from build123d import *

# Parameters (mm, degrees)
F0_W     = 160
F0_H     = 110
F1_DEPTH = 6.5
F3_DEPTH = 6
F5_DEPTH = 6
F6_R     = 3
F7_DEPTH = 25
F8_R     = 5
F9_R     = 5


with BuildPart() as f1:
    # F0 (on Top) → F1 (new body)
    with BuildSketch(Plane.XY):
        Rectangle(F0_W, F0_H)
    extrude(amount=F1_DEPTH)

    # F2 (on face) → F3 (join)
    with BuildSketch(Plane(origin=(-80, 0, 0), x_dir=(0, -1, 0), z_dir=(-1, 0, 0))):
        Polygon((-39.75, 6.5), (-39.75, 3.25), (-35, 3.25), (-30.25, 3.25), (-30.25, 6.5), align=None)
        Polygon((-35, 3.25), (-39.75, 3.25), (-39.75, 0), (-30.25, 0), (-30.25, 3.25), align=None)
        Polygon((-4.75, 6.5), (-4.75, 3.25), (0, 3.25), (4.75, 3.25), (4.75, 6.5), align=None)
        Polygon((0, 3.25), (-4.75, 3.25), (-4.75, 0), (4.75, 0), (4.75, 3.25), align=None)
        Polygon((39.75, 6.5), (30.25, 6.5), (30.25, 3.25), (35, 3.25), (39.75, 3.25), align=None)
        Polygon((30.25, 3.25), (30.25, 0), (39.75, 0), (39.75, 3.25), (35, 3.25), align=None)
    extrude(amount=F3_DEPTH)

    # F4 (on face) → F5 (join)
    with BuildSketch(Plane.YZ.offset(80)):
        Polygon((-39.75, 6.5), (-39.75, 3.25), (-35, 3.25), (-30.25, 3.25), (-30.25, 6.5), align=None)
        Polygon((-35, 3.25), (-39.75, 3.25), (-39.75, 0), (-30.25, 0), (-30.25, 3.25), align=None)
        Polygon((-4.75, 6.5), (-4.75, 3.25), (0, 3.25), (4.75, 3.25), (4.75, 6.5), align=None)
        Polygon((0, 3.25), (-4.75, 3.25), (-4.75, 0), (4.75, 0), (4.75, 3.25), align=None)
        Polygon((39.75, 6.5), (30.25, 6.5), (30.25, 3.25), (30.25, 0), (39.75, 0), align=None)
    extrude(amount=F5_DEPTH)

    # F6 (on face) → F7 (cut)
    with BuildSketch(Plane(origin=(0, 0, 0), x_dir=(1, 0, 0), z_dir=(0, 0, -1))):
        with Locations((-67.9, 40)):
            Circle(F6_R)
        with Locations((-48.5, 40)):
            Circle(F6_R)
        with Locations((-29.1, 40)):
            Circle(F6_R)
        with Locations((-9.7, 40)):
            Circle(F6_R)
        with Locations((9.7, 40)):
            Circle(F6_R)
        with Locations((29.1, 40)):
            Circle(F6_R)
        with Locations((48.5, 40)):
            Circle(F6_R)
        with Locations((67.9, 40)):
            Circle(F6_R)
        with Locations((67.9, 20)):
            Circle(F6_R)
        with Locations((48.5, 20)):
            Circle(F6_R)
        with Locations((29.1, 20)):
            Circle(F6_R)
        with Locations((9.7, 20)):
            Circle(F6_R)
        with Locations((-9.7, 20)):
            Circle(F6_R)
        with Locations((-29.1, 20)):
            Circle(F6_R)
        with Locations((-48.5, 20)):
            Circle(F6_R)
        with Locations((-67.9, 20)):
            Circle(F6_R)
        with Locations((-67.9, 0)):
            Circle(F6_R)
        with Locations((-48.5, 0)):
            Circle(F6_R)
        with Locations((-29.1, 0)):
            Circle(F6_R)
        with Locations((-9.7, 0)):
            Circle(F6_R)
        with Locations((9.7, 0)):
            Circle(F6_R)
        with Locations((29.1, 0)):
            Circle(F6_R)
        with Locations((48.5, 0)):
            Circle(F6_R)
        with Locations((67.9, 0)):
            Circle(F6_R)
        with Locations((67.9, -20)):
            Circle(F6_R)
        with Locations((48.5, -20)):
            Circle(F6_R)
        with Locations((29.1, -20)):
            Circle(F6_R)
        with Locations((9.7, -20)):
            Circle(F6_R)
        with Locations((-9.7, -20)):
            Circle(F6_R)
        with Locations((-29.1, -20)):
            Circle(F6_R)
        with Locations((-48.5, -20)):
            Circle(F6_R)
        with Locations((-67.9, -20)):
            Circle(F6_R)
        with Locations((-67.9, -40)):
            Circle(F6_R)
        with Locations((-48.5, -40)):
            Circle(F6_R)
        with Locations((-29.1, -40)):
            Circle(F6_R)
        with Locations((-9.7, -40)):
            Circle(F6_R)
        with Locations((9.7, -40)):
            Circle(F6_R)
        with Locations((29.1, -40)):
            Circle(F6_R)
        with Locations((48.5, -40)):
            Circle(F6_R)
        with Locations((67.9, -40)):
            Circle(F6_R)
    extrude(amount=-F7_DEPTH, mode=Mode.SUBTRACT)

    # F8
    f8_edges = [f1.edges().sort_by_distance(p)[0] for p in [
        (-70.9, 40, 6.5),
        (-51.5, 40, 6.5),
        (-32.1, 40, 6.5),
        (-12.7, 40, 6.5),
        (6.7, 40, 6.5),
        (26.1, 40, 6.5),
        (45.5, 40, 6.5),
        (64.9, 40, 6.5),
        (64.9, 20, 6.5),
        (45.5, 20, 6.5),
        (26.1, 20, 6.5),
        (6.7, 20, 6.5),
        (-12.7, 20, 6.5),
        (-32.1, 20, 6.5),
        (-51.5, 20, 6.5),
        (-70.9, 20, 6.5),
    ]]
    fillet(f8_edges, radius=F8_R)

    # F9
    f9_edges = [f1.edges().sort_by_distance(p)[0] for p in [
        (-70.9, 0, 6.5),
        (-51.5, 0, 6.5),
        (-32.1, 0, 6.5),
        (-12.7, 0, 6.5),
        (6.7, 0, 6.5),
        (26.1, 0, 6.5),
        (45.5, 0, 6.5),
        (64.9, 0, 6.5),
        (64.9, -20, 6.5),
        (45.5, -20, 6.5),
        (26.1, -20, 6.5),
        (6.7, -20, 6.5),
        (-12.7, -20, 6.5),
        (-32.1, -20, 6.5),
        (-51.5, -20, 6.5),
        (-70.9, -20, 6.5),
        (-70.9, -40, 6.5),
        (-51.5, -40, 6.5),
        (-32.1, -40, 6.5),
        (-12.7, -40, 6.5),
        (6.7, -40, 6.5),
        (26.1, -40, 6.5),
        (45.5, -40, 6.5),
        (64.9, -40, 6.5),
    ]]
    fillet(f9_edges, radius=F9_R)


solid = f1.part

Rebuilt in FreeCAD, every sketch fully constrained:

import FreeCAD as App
import Part
import Sketcher

V = App.Vector
Q = App.Units.Quantity


def edges_at(feature, points):
    """Names of the edges that pass closest to the given points."""
    edges = feature.Shape.Edges
    near = lambda p: min(range(len(edges)), key=lambda i: edges[i].distToShape(Part.Vertex(*p))[0])
    return sorted({f"Edge{near(p) + 1}" for p in points})


def add_polygon(sketch, points):
    """Adds a closed chain of lines whose ends are joined by coincident constraints."""
    first, n = sketch.GeometryCount, len(points)
    for a, b in zip(points, points[1:] + points[:1]):
        sketch.addGeometry(Part.LineSegment(App.Vector(*a, 0), App.Vector(*b, 0)), False)
    for i in range(n):
        sketch.addConstraint(Sketcher.Constraint("Coincident", first + i, 2, first + (i + 1) % n, 1))

doc = App.newDocument("Part")
body = doc.addObject("PartDesign::Body", "Body")

sketch1 = body.newObject("Sketcher::SketchObject", "Sketch")
sketch1.AttachmentSupport = (doc.getObject("XY_Plane"), [""])
sketch1.MapMode = "FlatFace"
add_polygon(sketch1, [(-80, 55), (-80, -55), (80, -55), (80, 55)])
sketch1.addConstraint([
    Sketcher.Constraint("Vertical", 0),
    Sketcher.Constraint("Horizontal", 1),
    Sketcher.Constraint("Vertical", 2),
    Sketcher.Constraint("Horizontal", 3),
    Sketcher.Constraint("Symmetric", 0, 2, 2, 2, -1, 1),
    Sketcher.Constraint("DistanceX", 1, 1, 1, 2, Q("160 mm")),
    Sketcher.Constraint("DistanceY", 0, 2, 0, 1, Q("110 mm")),
])
pad1 = body.newObject("PartDesign::Pad", "Pad")
pad1.Profile = sketch1
pad1.Length = 6.5

sketch2 = body.newObject("Sketcher::SketchObject", "Sketch001")
sketch2.AttachmentSupport = (doc.getObject("YZ_Plane"), [""])
sketch2.MapMode = "FlatFace"
sketch2.AttachmentOffset = App.Placement(V(0, 0, -80), App.Rotation())
add_polygon(sketch2, [(40, 6), (40, 0), (30, 0), (30, 6)])
add_polygon(sketch2, [(5, 6), (5, 0), (-5, 0), (-5, 6)])
add_polygon(sketch2, [(-40, 6), (-30, 6), (-30, 0), (-40, 0)])
sketch2.addConstraint([
    Sketcher.Constraint("Vertical", 0),
    Sketcher.Constraint("Horizontal", 1),
    Sketcher.Constraint("Vertical", 2),
    Sketcher.Constraint("Horizontal", 3),
    Sketcher.Constraint("Vertical", 4),
    Sketcher.Constraint("Horizontal", 5),
    Sketcher.Constraint("Vertical", 6),
    Sketcher.Constraint("Horizontal", 7),
    Sketcher.Constraint("Horizontal", 8),
    Sketcher.Constraint("Vertical", 9),
    Sketcher.Constraint("Horizontal", 10),
    Sketcher.Constraint("Vertical", 11),
    Sketcher.Constraint("Symmetric", 4, 2, 5, 2, -1, 1),
    Sketcher.Constraint("Symmetric", 1, 2, 9, 2, -1, 1),
    Sketcher.Constraint("Symmetric", 0, 2, 10, 2, -2),
    Sketcher.Constraint("Horizontal", 3, 2, 6, 2),
    Sketcher.Constraint("Horizontal", 7, 2, 8, 2),
    Sketcher.Constraint("Equal", 3, 5),
    Sketcher.Constraint("DistanceX", 1, 2, 1, 1, Q("9.5 mm")),
    Sketcher.Constraint("DistanceY", 0, 2, 0, 1, Q("6.5 mm")),
    Sketcher.Constraint("DistanceX", 4, 2, 0, 2, Q("35 mm")),
])
pad2 = body.newObject("PartDesign::Pad", "Pad001")
pad2.Profile = sketch2
pad2.Length = 6
pad2.Reversed = True

sketch3 = body.newObject("Sketcher::SketchObject", "Sketch002")
sketch3.AttachmentSupport = (doc.getObject("YZ_Plane"), [""])
sketch3.MapMode = "FlatFace"
sketch3.AttachmentOffset = App.Placement(V(0, 0, 80), App.Rotation())
add_polygon(sketch3, [(-40, 6), (-40, 0), (-30, 0), (-30, 6)])
add_polygon(sketch3, [(-5, 6), (-5, 0), (5, 0), (5, 6)])
add_polygon(sketch3, [(40, 6), (30, 6), (30, 0), (40, 0)])
sketch3.addConstraint([
    Sketcher.Constraint("Vertical", 0),
    Sketcher.Constraint("Horizontal", 1),
    Sketcher.Constraint("Vertical", 2),
    Sketcher.Constraint("Horizontal", 3),
    Sketcher.Constraint("Vertical", 4),
    Sketcher.Constraint("Horizontal", 5),
    Sketcher.Constraint("Vertical", 6),
    Sketcher.Constraint("Horizontal", 7),
    Sketcher.Constraint("Horizontal", 8),
    Sketcher.Constraint("Vertical", 9),
    Sketcher.Constraint("Horizontal", 10),
    Sketcher.Constraint("Vertical", 11),
    Sketcher.Constraint("Symmetric", 4, 2, 5, 2, -1, 1),
    Sketcher.Constraint("Symmetric", 1, 2, 9, 2, -1, 1),
    Sketcher.Constraint("Symmetric", 0, 2, 10, 2, -2),
    Sketcher.Constraint("Horizontal", 3, 2, 6, 2),
    Sketcher.Constraint("Horizontal", 7, 2, 8, 2),
    Sketcher.Constraint("Equal", 3, 5),
    Sketcher.Constraint("DistanceX", 1, 1, 1, 2, Q("9.5 mm")),
    Sketcher.Constraint("DistanceY", 0, 2, 0, 1, Q("6.5 mm")),
    Sketcher.Constraint("DistanceX", 0, 2, 4, 2, Q("35 mm")),
])
pad3 = body.newObject("PartDesign::Pad", "Pad002")
pad3.Profile = sketch3
pad3.Length = 6

sketch4 = body.newObject("Sketcher::SketchObject", "Sketch003")
sketch4.AttachmentSupport = (doc.getObject("XY_Plane"), [""])
sketch4.MapMode = "FlatFace"
sketch4.addGeometry([
    Part.Circle(V(-67.9, -40, 0), V(0, 0, 1), 3),
    Part.Circle(V(-48.5, -40, 0), V(0, 0, 1), 3),
    Part.Circle(V(-29.1, -40, 0), V(0, 0, 1), 3),
    Part.Circle(V(-9.7, -40, 0), V(0, 0, 1), 3),
    Part.Circle(V(9.7, -40, 0), V(0, 0, 1), 3),
    Part.Circle(V(29.1, -40, 0), V(0, 0, 1), 3),
    Part.Circle(V(48.5, -40, 0), V(0, 0, 1), 3),
    Part.Circle(V(67.9, -40, 0), V(0, 0, 1), 3),
    Part.Circle(V(67.9, -20, 0), V(0, 0, 1), 3),
    Part.Circle(V(48.5, -20, 0), V(0, 0, 1), 3),
    Part.Circle(V(29.1, -20, 0), V(0, 0, 1), 3),
    Part.Circle(V(9.7, -20, 0), V(0, 0, 1), 3),
    Part.Circle(V(-9.7, -20, 0), V(0, 0, 1), 3),
    Part.Circle(V(-29.1, -20, 0), V(0, 0, 1), 3),
    Part.Circle(V(-48.5, -20, 0), V(0, 0, 1), 3),
    Part.Circle(V(-67.9, -20, 0), V(0, 0, 1), 3),
    Part.Circle(V(-67.9, 0, 0), V(0, 0, 1), 3),
    Part.Circle(V(-48.5, 0, 0), V(0, 0, 1), 3),
    Part.Circle(V(-29.1, 0, 0), V(0, 0, 1), 3),
    Part.Circle(V(-9.7, 0, 0), V(0, 0, 1), 3),
    Part.Circle(V(9.7, 0, 0), V(0, 0, 1), 3),
    Part.Circle(V(29.1, 0, 0), V(0, 0, 1), 3),
    Part.Circle(V(48.5, 0, 0), V(0, 0, 1), 3),
    Part.Circle(V(67.9, 0, 0), V(0, 0, 1), 3),
    Part.Circle(V(67.9, 20, 0), V(0, 0, 1), 3),
    Part.Circle(V(48.5, 20, 0), V(0, 0, 1), 3),
    Part.Circle(V(29.1, 20, 0), V(0, 0, 1), 3),
    Part.Circle(V(9.7, 20, 0), V(0, 0, 1), 3),
    Part.Circle(V(-9.7, 20, 0), V(0, 0, 1), 3),
    Part.Circle(V(-29.1, 20, 0), V(0, 0, 1), 3),
    Part.Circle(V(-48.5, 20, 0), V(0, 0, 1), 3),
    Part.Circle(V(-67.9, 20, 0), V(0, 0, 1), 3),
    Part.Circle(V(-67.9, 40, 0), V(0, 0, 1), 3),
    Part.Circle(V(-48.5, 40, 0), V(0, 0, 1), 3),
    Part.Circle(V(-29.1, 40, 0), V(0, 0, 1), 3),
    Part.Circle(V(-9.7, 40, 0), V(0, 0, 1), 3),
    Part.Circle(V(9.7, 40, 0), V(0, 0, 1), 3),
    Part.Circle(V(29.1, 40, 0), V(0, 0, 1), 3),
    Part.Circle(V(48.5, 40, 0), V(0, 0, 1), 3),
    Part.Circle(V(67.9, 40, 0), V(0, 0, 1), 3),
], False)
sketch4.addConstraint([
    Sketcher.Constraint("Equal", 0, 1),
    Sketcher.Constraint("Equal", 1, 2),
    Sketcher.Constraint("Equal", 2, 3),
    Sketcher.Constraint("Equal", 3, 4),
    Sketcher.Constraint("Equal", 4, 5),
    Sketcher.Constraint("Equal", 5, 6),
    Sketcher.Constraint("Equal", 6, 7),
    Sketcher.Constraint("Equal", 7, 8),
    Sketcher.Constraint("Equal", 8, 9),
    Sketcher.Constraint("Equal", 9, 10),
    Sketcher.Constraint("Equal", 10, 11),
    Sketcher.Constraint("Equal", 11, 12),
    Sketcher.Constraint("Equal", 12, 13),
    Sketcher.Constraint("Equal", 13, 14),
    Sketcher.Constraint("Equal", 14, 15),
    Sketcher.Constraint("Equal", 15, 16),
    Sketcher.Constraint("Equal", 16, 17),
    Sketcher.Constraint("Equal", 17, 18),
    Sketcher.Constraint("Equal", 18, 19),
    Sketcher.Constraint("Equal", 19, 20),
    Sketcher.Constraint("Equal", 20, 21),
    Sketcher.Constraint("Equal", 21, 22),
    Sketcher.Constraint("Equal", 22, 23),
    Sketcher.Constraint("Equal", 23, 24),
    Sketcher.Constraint("Equal", 24, 25),
    Sketcher.Constraint("Equal", 25, 26),
    Sketcher.Constraint("Equal", 26, 27),
    Sketcher.Constraint("Equal", 27, 28),
    Sketcher.Constraint("Equal", 28, 29),
    Sketcher.Constraint("Equal", 29, 30),
    Sketcher.Constraint("Equal", 30, 31),
    Sketcher.Constraint("Equal", 31, 32),
    Sketcher.Constraint("Equal", 32, 33),
    Sketcher.Constraint("Equal", 33, 34),
    Sketcher.Constraint("Equal", 34, 35),
    Sketcher.Constraint("Equal", 35, 36),
    Sketcher.Constraint("Equal", 36, 37),
    Sketcher.Constraint("Equal", 37, 38),
    Sketcher.Constraint("Equal", 38, 39),
    Sketcher.Constraint("Symmetric", 19, 3, 20, 3, -1, 1),
    Sketcher.Constraint("Symmetric", 18, 3, 21, 3, -1, 1),
    Sketcher.Constraint("Symmetric", 17, 3, 22, 3, -1, 1),
    Sketcher.Constraint("Symmetric", 16, 3, 23, 3, -1, 1),
    Sketcher.Constraint("Symmetric", 15, 3, 24, 3, -1, 1),
    Sketcher.Constraint("Symmetric", 14, 3, 25, 3, -1, 1),
    Sketcher.Constraint("Symmetric", 13, 3, 26, 3, -1, 1),
    Sketcher.Constraint("Symmetric", 12, 3, 27, 3, -1, 1),
    Sketcher.Constraint("Symmetric", 11, 3, 28, 3, -1, 1),
    Sketcher.Constraint("Symmetric", 10, 3, 29, 3, -1, 1),
    Sketcher.Constraint("Symmetric", 9, 3, 30, 3, -1, 1),
    Sketcher.Constraint("Symmetric", 8, 3, 31, 3, -1, 1),
    Sketcher.Constraint("Symmetric", 7, 3, 32, 3, -1, 1),
    Sketcher.Constraint("Symmetric", 6, 3, 33, 3, -1, 1),
    Sketcher.Constraint("Symmetric", 5, 3, 34, 3, -1, 1),
    Sketcher.Constraint("Symmetric", 4, 3, 35, 3, -1, 1),
    Sketcher.Constraint("Symmetric", 3, 3, 36, 3, -1, 1),
    Sketcher.Constraint("Symmetric", 2, 3, 37, 3, -1, 1),
    Sketcher.Constraint("Symmetric", 1, 3, 38, 3, -1, 1),
    Sketcher.Constraint("Symmetric", 0, 3, 39, 3, -1, 1),
    Sketcher.Constraint("Symmetric", 3, 3, 4, 3, -2),
    Sketcher.Constraint("Symmetric", 2, 3, 5, 3, -2),
    Sketcher.Constraint("Symmetric", 1, 3, 6, 3, -2),
    Sketcher.Constraint("Symmetric", 0, 3, 7, 3, -2),
    Sketcher.Constraint("Symmetric", 11, 3, 12, 3, -2),
    Sketcher.Constraint("Symmetric", 10, 3, 13, 3, -2),
    Sketcher.Constraint("Symmetric", 9, 3, 14, 3, -2),
    Sketcher.Constraint("Symmetric", 8, 3, 15, 3, -2),
    Sketcher.Constraint("PointOnObject", 16, 3, -1),
    Sketcher.Constraint("PointOnObject", 17, 3, -1),
    Sketcher.Constraint("PointOnObject", 18, 3, -1),
    Sketcher.Constraint("PointOnObject", 19, 3, -1),
    Sketcher.Constraint("Horizontal", 0, 3, 1, 3),
    Sketcher.Constraint("Horizontal", 1, 3, 2, 3),
    Sketcher.Constraint("Horizontal", 2, 3, 3, 3),
    Sketcher.Constraint("Horizontal", 8, 3, 9, 3),
    Sketcher.Constraint("Horizontal", 9, 3, 10, 3),
    Sketcher.Constraint("Horizontal", 10, 3, 11, 3),
    Sketcher.Constraint("Vertical", 7, 3, 8, 3),
    Sketcher.Constraint("Vertical", 6, 3, 9, 3),
    Sketcher.Constraint("Vertical", 5, 3, 10, 3),
    Sketcher.Constraint("Vertical", 4, 3, 11, 3),
    Sketcher.Constraint("Vertical", 15, 3, 16, 3),
    Sketcher.Constraint("Vertical", 14, 3, 17, 3),
    Sketcher.Constraint("Vertical", 13, 3, 18, 3),
    Sketcher.Constraint("Vertical", 12, 3, 19, 3),
    Sketcher.Constraint("Diameter", 0, Q("6 mm")),
    Sketcher.Constraint("DistanceY", 0, 3, -1, 1, Q("40 mm")),
    Sketcher.Constraint("DistanceY", 8, 3, -1, 1, Q("20 mm")),
    Sketcher.Constraint("DistanceX", 0, 3, 5, 3, Q("97 mm")),
    Sketcher.Constraint("DistanceX", 1, 3, 6, 3, Q("97 mm")),
    Sketcher.Constraint("DistanceX", 0, 3, -1, 1, Q("67.9 mm")),
    Sketcher.Constraint("DistanceX", 3, 3, -1, 1, Q("9.7 mm")),
])
pocket1 = body.newObject("PartDesign::Pocket", "Pocket")
pocket1.Profile = sketch4
pocket1.Length = 25
pocket1.Reversed = True
doc.recompute()

fillet = body.newObject("PartDesign::Fillet", "Fillet")
fillet.Base = (pocket1, edges_at(pocket1, [
    (-70.9, 40, 6.5),
    (-51.5, 40, 6.5),
    (-32.1, 40, 6.5),
    (-12.7, 40, 6.5),
    (6.7, 40, 6.5),
    (26.1, 40, 6.5),
    (45.5, 40, 6.5),
    (64.9, 40, 6.5),
    (64.9, 20, 6.5),
    (45.5, 20, 6.5),
    (26.1, 20, 6.5),
    (6.7, 20, 6.5),
    (-12.7, 20, 6.5),
    (-32.1, 20, 6.5),
    (-51.5, 20, 6.5),
    (-70.9, 20, 6.5),
]))
fillet.Radius = 5
doc.recompute()

fillet2 = body.newObject("PartDesign::Fillet", "Fillet001")
fillet2.Base = (fillet, edges_at(fillet, [
    (-70.9, 0, 6.5),
    (-51.5, 0, 6.5),
    (-32.1, 0, 6.5),
    (-12.7, 0, 6.5),
    (6.7, 0, 6.5),
    (26.1, 0, 6.5),
    (45.5, 0, 6.5),
    (64.9, 0, 6.5),
    (64.9, -20, 6.5),
    (45.5, -20, 6.5),
    (26.1, -20, 6.5),
    (6.7, -20, 6.5),
    (-12.7, -20, 6.5),
    (-32.1, -20, 6.5),
    (-51.5, -20, 6.5),
    (-70.9, -20, 6.5),
    (-70.9, -40, 6.5),
    (-51.5, -40, 6.5),
    (-32.1, -40, 6.5),
    (-12.7, -40, 6.5),
    (6.7, -40, 6.5),
    (26.1, -40, 6.5),
    (45.5, -40, 6.5),
    (64.9, -40, 6.5),
]))
fillet2.Radius = 5

doc.recompute()
